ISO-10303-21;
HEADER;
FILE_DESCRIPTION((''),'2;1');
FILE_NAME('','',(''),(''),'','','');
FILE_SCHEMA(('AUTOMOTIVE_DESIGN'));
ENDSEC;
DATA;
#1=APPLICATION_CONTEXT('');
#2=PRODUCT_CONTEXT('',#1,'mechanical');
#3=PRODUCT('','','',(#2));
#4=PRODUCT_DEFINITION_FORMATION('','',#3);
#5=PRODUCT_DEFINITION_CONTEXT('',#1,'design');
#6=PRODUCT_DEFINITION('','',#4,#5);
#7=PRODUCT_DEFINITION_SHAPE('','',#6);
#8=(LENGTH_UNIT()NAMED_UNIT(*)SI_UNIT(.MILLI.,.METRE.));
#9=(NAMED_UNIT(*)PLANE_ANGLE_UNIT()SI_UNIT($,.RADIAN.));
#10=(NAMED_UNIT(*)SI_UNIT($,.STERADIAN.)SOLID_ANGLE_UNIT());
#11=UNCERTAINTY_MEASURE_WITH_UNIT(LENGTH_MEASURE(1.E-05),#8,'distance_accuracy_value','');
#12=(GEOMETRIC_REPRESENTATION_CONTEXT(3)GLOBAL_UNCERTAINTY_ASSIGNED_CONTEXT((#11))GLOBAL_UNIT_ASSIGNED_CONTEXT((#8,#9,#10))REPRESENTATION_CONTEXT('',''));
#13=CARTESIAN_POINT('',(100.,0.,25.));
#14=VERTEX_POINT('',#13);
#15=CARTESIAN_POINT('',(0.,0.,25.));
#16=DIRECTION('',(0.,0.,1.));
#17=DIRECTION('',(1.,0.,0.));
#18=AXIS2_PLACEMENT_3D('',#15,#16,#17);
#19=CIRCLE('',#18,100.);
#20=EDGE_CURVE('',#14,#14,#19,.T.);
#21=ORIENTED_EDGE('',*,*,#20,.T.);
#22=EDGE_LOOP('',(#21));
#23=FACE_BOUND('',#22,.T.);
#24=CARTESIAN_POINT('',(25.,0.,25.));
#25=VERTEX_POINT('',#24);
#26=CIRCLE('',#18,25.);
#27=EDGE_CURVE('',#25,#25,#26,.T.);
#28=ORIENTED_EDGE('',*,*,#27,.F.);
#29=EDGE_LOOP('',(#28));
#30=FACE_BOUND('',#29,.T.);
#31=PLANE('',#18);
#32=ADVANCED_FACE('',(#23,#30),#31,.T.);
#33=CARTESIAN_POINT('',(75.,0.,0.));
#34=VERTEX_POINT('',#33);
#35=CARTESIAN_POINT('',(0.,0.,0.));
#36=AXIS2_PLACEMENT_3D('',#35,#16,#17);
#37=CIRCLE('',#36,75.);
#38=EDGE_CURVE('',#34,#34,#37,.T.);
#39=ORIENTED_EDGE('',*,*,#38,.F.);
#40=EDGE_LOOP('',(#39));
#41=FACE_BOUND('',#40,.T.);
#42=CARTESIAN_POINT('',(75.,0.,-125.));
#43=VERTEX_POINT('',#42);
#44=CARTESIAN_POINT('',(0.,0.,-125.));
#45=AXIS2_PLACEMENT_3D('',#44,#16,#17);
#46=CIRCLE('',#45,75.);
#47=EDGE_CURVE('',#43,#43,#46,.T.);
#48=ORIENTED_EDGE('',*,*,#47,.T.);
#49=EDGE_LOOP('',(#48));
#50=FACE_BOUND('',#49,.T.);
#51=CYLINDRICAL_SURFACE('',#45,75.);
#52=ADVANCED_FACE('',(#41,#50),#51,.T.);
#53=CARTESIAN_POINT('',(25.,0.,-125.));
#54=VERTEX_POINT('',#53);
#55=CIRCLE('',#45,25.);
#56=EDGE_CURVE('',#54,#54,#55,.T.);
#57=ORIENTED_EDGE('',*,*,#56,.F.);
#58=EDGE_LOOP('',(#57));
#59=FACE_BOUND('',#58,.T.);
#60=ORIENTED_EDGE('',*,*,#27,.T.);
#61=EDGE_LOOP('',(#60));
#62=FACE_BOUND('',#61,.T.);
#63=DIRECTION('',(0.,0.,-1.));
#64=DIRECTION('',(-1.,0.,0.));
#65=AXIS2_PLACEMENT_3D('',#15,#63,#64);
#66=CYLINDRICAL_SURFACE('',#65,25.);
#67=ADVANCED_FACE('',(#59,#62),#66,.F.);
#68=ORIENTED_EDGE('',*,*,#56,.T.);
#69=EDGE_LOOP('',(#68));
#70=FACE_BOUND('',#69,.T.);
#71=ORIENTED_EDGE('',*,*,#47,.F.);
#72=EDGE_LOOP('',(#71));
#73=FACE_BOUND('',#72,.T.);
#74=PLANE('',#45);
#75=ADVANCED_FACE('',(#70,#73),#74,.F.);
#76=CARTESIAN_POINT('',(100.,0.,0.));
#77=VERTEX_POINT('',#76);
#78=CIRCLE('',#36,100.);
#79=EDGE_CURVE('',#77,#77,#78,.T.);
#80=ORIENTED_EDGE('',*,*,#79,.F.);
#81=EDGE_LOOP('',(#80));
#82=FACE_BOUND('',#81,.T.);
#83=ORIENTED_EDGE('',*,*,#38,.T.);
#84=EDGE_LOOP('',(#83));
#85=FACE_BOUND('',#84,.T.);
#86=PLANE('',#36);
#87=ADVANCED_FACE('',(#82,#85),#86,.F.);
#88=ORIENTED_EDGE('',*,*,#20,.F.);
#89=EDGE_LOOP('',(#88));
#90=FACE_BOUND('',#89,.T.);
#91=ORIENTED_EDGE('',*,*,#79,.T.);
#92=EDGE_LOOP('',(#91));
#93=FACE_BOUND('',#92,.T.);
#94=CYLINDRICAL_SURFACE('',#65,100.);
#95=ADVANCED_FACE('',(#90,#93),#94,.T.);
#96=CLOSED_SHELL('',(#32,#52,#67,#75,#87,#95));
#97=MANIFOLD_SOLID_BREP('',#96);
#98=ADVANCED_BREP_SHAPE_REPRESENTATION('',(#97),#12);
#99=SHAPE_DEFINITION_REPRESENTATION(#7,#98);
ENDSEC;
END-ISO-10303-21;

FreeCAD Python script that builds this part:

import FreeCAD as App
import Part
import Sketcher

V = App.Vector

doc = App.newDocument("Part")
params = doc.addObject("Spreadsheet::Sheet", "Params")
for row, (alias, value) in enumerate([
    ("sketch1_diameter", "200 mm"),
    ("sketch1_diameter2", "50 mm"),
    ("pad1_length", "25 mm"),
    ("sketch2_diameter", "150 mm"),
    ("sketch2_diameter2", "50 mm"),
    ("pad2_length", "125 mm"),
], start=1):
    params.set(f"A{row}", alias)
    params.set(f"B{row}", "=" + value)
    params.setAlias(f"B{row}", alias)

body = doc.addObject("PartDesign::Body", "Body")

# Sketch on XY plane
sketch1 = body.newObject("Sketcher::SketchObject", "Sketch")
sketch1.AttachmentSupport = (doc.getObject("XY_Plane"), [""])
sketch1.MapMode = "FlatFace"
sketch1.addGeometry([
    Part.Circle(V(0, 0, 0), V(0, 0, 1), 100),
    Part.Circle(V(0, 0, 0), V(0, 0, 1), 25),
], False)
sketch1.addConstraint([
    Sketcher.Constraint("Coincident", 0, 3, -1, 1),
    Sketcher.Constraint("Coincident", 1, 3, -1, 1),
    Sketcher.Constraint("Diameter", 0, 200.0),
    Sketcher.Constraint("Diameter", 1, 50.0),
])
sketch1.setExpression("Constraints[2]", "Params.sketch1_diameter")
sketch1.setExpression("Constraints[3]", "Params.sketch1_diameter2")
pad1 = body.newObject("PartDesign::Pad", "Pad")
pad1.Profile = sketch1
pad1.setExpression("Length", "Params.pad1_length")

# Sketch on XY plane
sketch2 = body.newObject("Sketcher::SketchObject", "Sketch001")
sketch2.AttachmentSupport = (doc.getObject("XY_Plane"), [""])
sketch2.MapMode = "FlatFace"
sketch2.AttachmentOffset = App.Placement(V(0, 0, -125), App.Rotation())
sketch2.addGeometry([
    Part.Circle(V(0, 0, 0), V(0, 0, 1), 75),
    Part.Circle(V(0, 0, 0), V(0, 0, 1), 25),
], False)
sketch2.addConstraint([
    Sketcher.Constraint("Coincident", 0, 3, -1, 1),
    Sketcher.Constraint("Coincident", 1, 3, -1, 1),
    Sketcher.Constraint("Diameter", 0, 150.0),
    Sketcher.Constraint("Diameter", 1, 50.0),
])
sketch2.setExpression("Constraints[2]", "Params.sketch2_diameter")
sketch2.setExpression("Constraints[3]", "Params.sketch2_diameter2")
pad2 = body.newObject("PartDesign::Pad", "Pad001")
pad2.Profile = sketch2
pad2.setExpression("Length", "Params.pad2_length")

doc.recompute()
